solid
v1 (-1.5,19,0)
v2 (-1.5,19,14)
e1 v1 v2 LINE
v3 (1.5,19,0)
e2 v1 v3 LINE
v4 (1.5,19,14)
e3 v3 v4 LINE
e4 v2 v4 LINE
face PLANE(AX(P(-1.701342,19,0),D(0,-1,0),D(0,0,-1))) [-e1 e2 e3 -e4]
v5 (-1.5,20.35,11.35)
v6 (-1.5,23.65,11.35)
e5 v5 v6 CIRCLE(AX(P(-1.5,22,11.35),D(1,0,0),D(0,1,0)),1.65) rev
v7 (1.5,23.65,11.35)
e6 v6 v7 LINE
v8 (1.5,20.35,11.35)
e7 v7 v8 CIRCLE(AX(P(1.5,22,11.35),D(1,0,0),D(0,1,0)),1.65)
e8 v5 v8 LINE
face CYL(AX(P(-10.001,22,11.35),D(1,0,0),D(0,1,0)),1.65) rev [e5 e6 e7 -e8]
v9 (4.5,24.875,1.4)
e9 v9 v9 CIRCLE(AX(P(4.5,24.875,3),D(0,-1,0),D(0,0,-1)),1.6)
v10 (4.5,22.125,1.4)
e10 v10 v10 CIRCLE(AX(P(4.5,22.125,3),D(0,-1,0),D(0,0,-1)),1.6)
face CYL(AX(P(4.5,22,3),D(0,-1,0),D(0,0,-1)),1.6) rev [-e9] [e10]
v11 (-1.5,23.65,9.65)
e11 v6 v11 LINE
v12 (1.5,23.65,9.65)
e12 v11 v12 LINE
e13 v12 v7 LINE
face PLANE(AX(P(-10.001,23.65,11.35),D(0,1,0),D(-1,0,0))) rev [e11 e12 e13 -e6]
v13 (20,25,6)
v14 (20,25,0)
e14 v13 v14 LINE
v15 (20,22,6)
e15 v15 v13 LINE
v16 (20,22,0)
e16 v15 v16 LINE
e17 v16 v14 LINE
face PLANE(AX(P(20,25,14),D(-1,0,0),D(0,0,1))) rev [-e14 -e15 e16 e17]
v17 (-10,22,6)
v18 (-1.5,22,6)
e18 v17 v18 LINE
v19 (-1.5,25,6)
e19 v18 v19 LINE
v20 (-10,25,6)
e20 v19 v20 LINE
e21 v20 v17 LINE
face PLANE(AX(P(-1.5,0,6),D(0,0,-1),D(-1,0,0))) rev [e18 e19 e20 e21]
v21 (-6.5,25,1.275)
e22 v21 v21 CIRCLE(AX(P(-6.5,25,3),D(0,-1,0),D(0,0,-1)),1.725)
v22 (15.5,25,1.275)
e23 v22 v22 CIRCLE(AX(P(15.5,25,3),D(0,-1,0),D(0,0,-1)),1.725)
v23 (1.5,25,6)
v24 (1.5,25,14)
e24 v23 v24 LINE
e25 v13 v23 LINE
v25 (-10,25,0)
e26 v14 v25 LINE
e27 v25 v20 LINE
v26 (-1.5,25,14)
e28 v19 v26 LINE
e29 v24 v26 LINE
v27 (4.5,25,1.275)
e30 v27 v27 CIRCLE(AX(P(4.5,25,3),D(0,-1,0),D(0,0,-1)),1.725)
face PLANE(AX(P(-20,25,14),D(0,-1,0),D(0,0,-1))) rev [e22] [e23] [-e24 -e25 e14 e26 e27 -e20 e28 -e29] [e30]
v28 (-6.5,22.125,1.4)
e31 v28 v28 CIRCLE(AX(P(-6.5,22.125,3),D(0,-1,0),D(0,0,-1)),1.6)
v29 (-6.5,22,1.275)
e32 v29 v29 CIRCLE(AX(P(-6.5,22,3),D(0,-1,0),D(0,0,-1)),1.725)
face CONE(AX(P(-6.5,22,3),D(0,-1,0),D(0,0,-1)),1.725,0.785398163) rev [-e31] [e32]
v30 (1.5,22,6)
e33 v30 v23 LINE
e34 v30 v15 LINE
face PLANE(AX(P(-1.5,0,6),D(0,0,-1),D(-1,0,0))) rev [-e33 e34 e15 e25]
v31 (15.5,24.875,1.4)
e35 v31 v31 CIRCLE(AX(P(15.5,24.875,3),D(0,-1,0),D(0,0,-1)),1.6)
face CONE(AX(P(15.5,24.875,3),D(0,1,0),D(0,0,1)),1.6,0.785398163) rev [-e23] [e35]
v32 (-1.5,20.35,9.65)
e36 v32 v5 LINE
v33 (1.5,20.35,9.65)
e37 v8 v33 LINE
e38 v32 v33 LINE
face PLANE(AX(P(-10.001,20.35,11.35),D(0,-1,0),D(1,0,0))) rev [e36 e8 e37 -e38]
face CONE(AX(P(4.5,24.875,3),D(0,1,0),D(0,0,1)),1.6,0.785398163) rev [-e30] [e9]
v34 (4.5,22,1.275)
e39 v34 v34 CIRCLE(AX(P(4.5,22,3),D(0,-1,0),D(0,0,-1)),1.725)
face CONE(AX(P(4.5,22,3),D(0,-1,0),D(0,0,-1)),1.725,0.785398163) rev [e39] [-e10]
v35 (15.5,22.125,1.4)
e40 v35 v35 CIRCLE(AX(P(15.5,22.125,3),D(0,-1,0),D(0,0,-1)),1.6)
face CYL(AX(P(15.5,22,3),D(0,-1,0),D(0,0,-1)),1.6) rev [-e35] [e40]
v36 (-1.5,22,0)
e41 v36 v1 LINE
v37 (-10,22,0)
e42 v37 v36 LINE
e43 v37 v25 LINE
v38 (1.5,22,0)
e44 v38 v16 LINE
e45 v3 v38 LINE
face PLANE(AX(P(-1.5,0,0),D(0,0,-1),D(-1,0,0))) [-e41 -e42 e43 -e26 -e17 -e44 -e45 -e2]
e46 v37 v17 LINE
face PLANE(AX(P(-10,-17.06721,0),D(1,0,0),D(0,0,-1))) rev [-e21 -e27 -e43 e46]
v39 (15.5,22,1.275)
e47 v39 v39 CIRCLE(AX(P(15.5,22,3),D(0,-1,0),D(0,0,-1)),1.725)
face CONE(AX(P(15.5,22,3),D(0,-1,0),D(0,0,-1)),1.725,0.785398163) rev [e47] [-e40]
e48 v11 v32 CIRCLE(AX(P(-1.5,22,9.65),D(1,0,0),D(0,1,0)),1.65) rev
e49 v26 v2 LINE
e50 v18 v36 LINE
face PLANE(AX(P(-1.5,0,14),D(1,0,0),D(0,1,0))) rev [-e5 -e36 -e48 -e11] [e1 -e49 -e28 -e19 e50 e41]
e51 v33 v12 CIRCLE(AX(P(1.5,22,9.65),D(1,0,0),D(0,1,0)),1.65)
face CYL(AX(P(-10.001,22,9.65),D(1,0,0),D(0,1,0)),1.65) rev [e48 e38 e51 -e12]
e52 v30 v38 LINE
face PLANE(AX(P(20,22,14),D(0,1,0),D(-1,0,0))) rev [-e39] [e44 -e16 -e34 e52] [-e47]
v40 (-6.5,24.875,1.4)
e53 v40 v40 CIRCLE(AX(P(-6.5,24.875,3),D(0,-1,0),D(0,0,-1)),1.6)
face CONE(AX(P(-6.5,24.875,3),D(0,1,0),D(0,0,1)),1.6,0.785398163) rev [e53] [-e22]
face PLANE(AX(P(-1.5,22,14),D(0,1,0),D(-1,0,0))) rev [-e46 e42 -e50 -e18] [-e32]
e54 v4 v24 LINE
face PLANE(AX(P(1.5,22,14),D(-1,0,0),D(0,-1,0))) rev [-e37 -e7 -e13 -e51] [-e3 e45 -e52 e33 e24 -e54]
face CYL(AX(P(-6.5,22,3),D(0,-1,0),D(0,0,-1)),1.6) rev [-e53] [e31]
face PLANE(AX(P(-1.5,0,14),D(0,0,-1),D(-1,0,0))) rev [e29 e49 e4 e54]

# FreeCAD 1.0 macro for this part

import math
import FreeCAD as App
import Part
import Sketcher

V = App.Vector
Q = App.Units.Quantity

doc = App.newDocument("Part")
params = doc.addObject("Spreadsheet::Sheet", "Params")
for row, (alias, value) in enumerate([
    ("sketch1_width", "3 mm"),
    ("sketch1_width2", "40 mm"),
    ("sketch1_height", "22 mm"),
    ("pad1_length", "14 mm"),
    ("sketch2_width", "10 mm"),
    ("sketch2_width2", "3 mm"),
    ("sketch2_height", "19 mm"),
    ("sketch3_height", "3 mm"),
    ("sketch3_width", "8.5 mm"),
    ("sketch3_width2", "18.5 mm"),
    ("pocket2_length", "8 mm"),
    ("sketch4_width", "3 mm"),
    ("sketch4_width2", "2.75 mm"),
    ("groove_angle", "360 deg"),
    ("linearpattern_pitch", "22 mm"),
    ("linearpattern2_pitch", "11 mm"),
    ("sketch5_radius", "1.65 mm"),
    ("sketch5_height", "1.7 mm"),
], start=1):
    params.set(f"A{row}", alias)
    params.set(f"B{row}", "=" + value)
    params.setAlias(f"B{row}", alias)

body = doc.addObject("PartDesign::Body", "Body")

# Sketch on XY plane
sketch1 = body.newObject("Sketcher::SketchObject", "Sketch")
sketch1.AttachmentSupport = (doc.getObject("XY_Plane"), [""])
sketch1.MapMode = "FlatFace"
sketch1.addGeometry([
    Part.LineSegment(V(-1.5, 22, 0), V(-1.5, 0, 0)),  # 0
    Part.LineSegment(V(-1.5, 0, 0), V(1.5, 0, 0)),  # 1
    Part.LineSegment(V(1.5, 0, 0), V(1.5, 22, 0)),  # 2
    Part.LineSegment(V(1.5, 22, 0), V(20, 22, 0)),  # 3
    Part.LineSegment(V(20, 22, 0), V(20, 25, 0)),  # 4
    Part.LineSegment(V(20, 25, 0), V(-20, 25, 0)),  # 5
    Part.LineSegment(V(-20, 25, 0), V(-20, 22, 0)),  # 6
    Part.LineSegment(V(-20, 22, 0), V(-1.5, 22, 0)),  # 7
], False)
sketch1.addConstraint([
    Sketcher.Constraint("Coincident", 0, 2, 1, 1),
    Sketcher.Constraint("Coincident", 1, 2, 2, 1),
    Sketcher.Constraint("Coincident", 2, 2, 3, 1),
    Sketcher.Constraint("Coincident", 3, 2, 4, 1),
    Sketcher.Constraint("Coincident", 4, 2, 5, 1),
    Sketcher.Constraint("Coincident", 5, 2, 6, 1),
    Sketcher.Constraint("Coincident", 6, 2, 7, 1),
    Sketcher.Constraint("Coincident", 7, 2, 0, 1),
    Sketcher.Constraint("Vertical", 0),
    Sketcher.Constraint("Horizontal", 1),
    Sketcher.Constraint("Vertical", 2),
    Sketcher.Constraint("Horizontal", 3),
    Sketcher.Constraint("Vertical", 4),
    Sketcher.Constraint("Horizontal", 5),
    Sketcher.Constraint("Vertical", 6),
    Sketcher.Constraint("Horizontal", 7),
    Sketcher.Constraint("Symmetric", 0, 2, 1, 2, -1, 1),
    Sketcher.Constraint("Symmetric", 3, 2, 6, 2, -2),
    Sketcher.Constraint("Equal", 1, 4),
    Sketcher.Constraint("DistanceX", 1, 1, 1, 2, Q("3 mm")),
    Sketcher.Constraint("DistanceX", 5, 2, 5, 1, Q("40 mm")),
    Sketcher.Constraint("DistanceY", 0, 2, 0, 1, Q("22 mm")),
])
sketch1.setExpression("Constraints[19]", "Params.sketch1_width")
sketch1.setExpression("Constraints[20]", "Params.sketch1_width2")
sketch1.setExpression("Constraints[21]", "Params.sketch1_height")
pad1 = body.newObject("PartDesign::Pad", "Pad")
pad1.Profile = sketch1
pad1.setExpression("Length", "Params.pad1_length")

# Sketch on XY plane
sketch2 = body.newObject("Sketcher::SketchObject", "Sketch001")
sketch2.AttachmentSupport = (doc.getObject("XY_Plane"), [""])
sketch2.MapMode = "FlatFace"
sketch2.AttachmentOffset = App.Placement(V(0, 0, 14), App.Rotation())
sketch2.addGeometry([
    Part.LineSegment(V(-20, 25, 0), V(-20, 22, 0)),  # 0
    Part.LineSegment(V(-20, 22, 0), V(-10, 22, 0)),  # 1
    Part.LineSegment(V(-10, 22, 0), V(-10, 25, 0)),  # 2
    Part.LineSegment(V(-10, 25, 0), V(-20, 25, 0)),  # 3
    Part.LineSegment(V(-1.5, 19, 0), V(-1.5, 0, 0)),  # 4
    Part.LineSegment(V(-1.5, 0, 0), V(1.5, 0, 0)),  # 5
    Part.LineSegment(V(1.5, 0, 0), V(1.5, 19, 0)),  # 6
    Part.LineSegment(V(1.5, 19, 0), V(-1.5, 19, 0)),  # 7
], False)
sketch2.addConstraint([
    Sketcher.Constraint("Coincident", 0, 2, 1, 1),
    Sketcher.Constraint("Coincident", 1, 2, 2, 1),
    Sketcher.Constraint("Coincident", 2, 2, 3, 1),
    Sketcher.Constraint("Coincident", 3, 2, 0, 1),
    Sketcher.Constraint("Coincident", 4, 2, 5, 1),
    Sketcher.Constraint("Coincident", 5, 2, 6, 1),
    Sketcher.Constraint("Coincident", 6, 2, 7, 1),
    Sketcher.Constraint("Coincident", 7, 2, 4, 1),
    Sketcher.Constraint("Vertical", 0),
    Sketcher.Constraint("Horizontal", 1),
    Sketcher.Constraint("Vertical", 2),
    Sketcher.Constraint("Horizontal", 3),
    Sketcher.Constraint("Vertical", 4),
    Sketcher.Constraint("Horizontal", 5),
    Sketcher.Constraint("Vertical", 6),
    Sketcher.Constraint("Horizontal", 7),
    Sketcher.Constraint("Symmetric", 4, 2, 5, 2, -1, 1),
    Sketcher.Constraint("Equal", 7, 0),
    Sketcher.Constraint("DistanceX", 1, 1, 1, 2, Q("10 mm")),
    Sketcher.Constraint("DistanceX", 5, 1, 5, 2, Q("3 mm")),
    Sketcher.Constraint("DistanceY", 4, 2, 4, 1, Q("19 mm")),
    Sketcher.Constraint("DistanceX", 0, 2, -1, 1, Q("20 mm")),
    Sketcher.Constraint("DistanceY", -1, 1, 0, 2, Q("22 mm")),
])
sketch2.setExpression("Constraints[18]", "Params.sketch2_width")
sketch2.setExpression("Constraints[19]", "Params.sketch2_width2")
sketch2.setExpression("Constraints[20]", "Params.sketch2_height")
pocket1 = body.newObject("PartDesign::Pocket", "Pocket")
pocket1.Profile = sketch2
pocket1.Type = "ThroughAll"

# Sketch on XY plane
sketch3 = body.newObject("Sketcher::SketchObject", "Sketch002")
sketch3.AttachmentSupport = (doc.getObject("XY_Plane"), [""])
sketch3.MapMode = "FlatFace"
sketch3.AttachmentOffset = App.Placement(V(0, 0, 14), App.Rotation())
sketch3.addGeometry([
    Part.LineSegment(V(-10, 25, 0), V(-10, 22, 0)),  # 0
    Part.LineSegment(V(-10, 22, 0), V(-1.5, 22, 0)),  # 1
    Part.LineSegment(V(-1.5, 22, 0), V(-1.5, 25, 0)),  # 2
    Part.LineSegment(V(-1.5, 25, 0), V(-10, 25, 0)),  # 3
    Part.LineSegment(V(1.5, 25, 0), V(1.5, 22, 0)),  # 4
    Part.LineSegment(V(1.5, 22, 0), V(20, 22, 0)),  # 5
    Part.LineSegment(V(20, 22, 0), V(20, 25, 0)),  # 6
    Part.LineSegment(V(20, 25, 0), V(1.5, 25, 0)),  # 7
], False)
sketch3.addConstraint([
    Sketcher.Constraint("Coincident", 0, 2, 1, 1),
    Sketcher.Constraint("Coincident", 1, 2, 2, 1),
    Sketcher.Constraint("Coincident", 2, 2, 3, 1),
    Sketcher.Constraint("Coincident", 3, 2, 0, 1),
    Sketcher.Constraint("Coincident", 4, 2, 5, 1),
    Sketcher.Constraint("Coincident", 5, 2, 6, 1),
    Sketcher.Constraint("Coincident", 6, 2, 7, 1),
    Sketcher.Constraint("Coincident", 7, 2, 4, 1),
    Sketcher.Constraint("Vertical", 0),
    Sketcher.Constraint("Horizontal", 1),
    Sketcher.Constraint("Vertical", 2),
    Sketcher.Constraint("Horizontal", 3),
    Sketcher.Constraint("Vertical", 4),
    Sketcher.Constraint("Horizontal", 5),
    Sketcher.Constraint("Vertical", 6),
    Sketcher.Constraint("Horizontal", 7),
    Sketcher.Constraint("Symmetric", 1, 2, 4, 2, -2),
    Sketcher.Constraint("Horizontal", 3, 2, 6, 2),
    Sketcher.Constraint("DistanceY", 0, 2, 0, 1, Q("3 mm")),
    Sketcher.Constraint("DistanceX", 1, 1, 1, 2, Q("8.5 mm")),
    Sketcher.Constraint("DistanceX", 5, 1, 5, 2, Q("18.5 mm")),
    Sketcher.Constraint("DistanceX", 0, 2, -1, 1, Q("10 mm")),
    Sketcher.Constraint("DistanceY", -1, 1, 0, 2, Q("22 mm")),
])
sketch3.setExpression("Constraints[18]", "Params.sketch3_height")
sketch3.setExpression("Constraints[19]", "Params.sketch3_width")
sketch3.setExpression("Constraints[20]", "Params.sketch3_width2")
pocket2 = body.newObject("PartDesign::Pocket", "Pocket001")
pocket2.Profile = sketch3
pocket2.setExpression("Length", "Params.pocket2_length")

# Sketch on YZ plane
sketch4 = body.newObject("Sketcher::SketchObject", "Sketch003")
sketch4.AttachmentSupport = (doc.getObject("YZ_Plane"), [""])
sketch4.MapMode = "FlatFace"
sketch4.AttachmentOffset = App.Placement(V(0, 0, -6.5), App.Rotation())
sketch4.addGeometry([
    Part.LineSegment(V(25, 3, 0), V(22, 3, 0)),  # 0
    Part.LineSegment(V(22, 3, 0), V(22, 1.27, 0)),  # 1
    Part.LineSegment(V(22, 1.27, 0), V(22.12, 1.4, 0)),  # 2
    Part.LineSegment(V(22.12, 1.4, 0), V(24.88, 1.4, 0)),  # 3
    Part.LineSegment(V(24.88, 1.4, 0), V(25, 1.27, 0)),  # 4
    Part.LineSegment(V(25, 1.27, 0), V(25, 3, 0)),  # 5
], False)
sketch4.addGeometry(Part.LineSegment(V(22, 3, 0), V(25, 3, 0)), True)  # axis
sketch4.addConstraint([
    Sketcher.Constraint("Coincident", 0, 2, 1, 1),
    Sketcher.Constraint("Coincident", 1, 2, 2, 1),
    Sketcher.Constraint("Coincident", 2, 2, 3, 1),
    Sketcher.Constraint("Coincident", 3, 2, 4, 1),
    Sketcher.Constraint("Coincident", 4, 2, 5, 1),
    Sketcher.Constraint("Coincident", 5, 2, 0, 1),
    Sketcher.Constraint("Horizontal", 0),
    Sketcher.Constraint("Vertical", 1),
    Sketcher.Constraint("Horizontal", 3),
    Sketcher.Constraint("Vertical", 5),
    Sketcher.Constraint("Horizontal", 6),
    Sketcher.Constraint("Coincident", 6, 1, 0, 2),
    Sketcher.Constraint("Perpendicular", 2, 4),
    Sketcher.Constraint("Horizontal", 1, 2, 4, 2),
    Sketcher.Constraint("Vertical", 4, 2, 6, 2),
    Sketcher.Constraint("Equal", 2, 4),
    Sketcher.Constraint("DistanceX", 0, 2, 0, 1, Q("3 mm")),
    Sketcher.Constraint("DistanceX", -1, 1, 0, 2, Q("22 mm")),
    Sketcher.Constraint("DistanceY", -1, 1, 0, 2, Q("3 mm")),
    Sketcher.Constraint("DistanceX", 3, 1, 3, 2, Q("2.75 mm")),
    Sketcher.Constraint("DistanceY", -1, 1, 2, 2, Q("1.4 mm")),
])
sketch4.setExpression("Constraints[16]", "Params.sketch4_width")
sketch4.setExpression("Constraints[19]", "Params.sketch4_width2")
groove = body.newObject("PartDesign::Groove", "Groove")
groove.Profile = sketch4
groove.ReferenceAxis = (sketch4, ["Axis0"])
groove.setExpression("Angle", "Params.groove_angle")
doc.recompute()

linearpattern = body.newObject("PartDesign::LinearPattern", "LinearPattern")
linearpattern.Originals = [groove]
linearpattern.Direction = (doc.getObject("X_Axis"), [""])
linearpattern.Mode = "offset"
linearpattern.setExpression("Offset", "Params.linearpattern_pitch")
linearpattern.Occurrences = 2
body.Tip = linearpattern
doc.recompute()

linearpattern2 = body.newObject("PartDesign::LinearPattern", "LinearPattern001")
linearpattern2.Originals = [groove]
linearpattern2.Direction = (doc.getObject("X_Axis"), [""])
linearpattern2.Mode = "offset"
linearpattern2.setExpression("Offset", "Params.linearpattern2_pitch")
linearpattern2.Occurrences = 2
body.Tip = linearpattern2

# Sketch on YZ plane
sketch5 = body.newObject("Sketcher::SketchObject", "Sketch004")
sketch5.AttachmentSupport = (doc.getObject("YZ_Plane"), [""])
sketch5.MapMode = "FlatFace"
sketch5.AttachmentOffset = App.Placement(V(0, 0, 1.5), App.Rotation())
sketch5.addGeometry([
    Part.LineSegment(V(23.6, 9.7, 0), V(23.6, 11.3, 0)),
    Part.ArcOfCircle(Part.Circle(V(22, 11.3, 0), V(0, 0, 1), 1.6), math.radians(0), math.radians(180)),
    Part.LineSegment(V(20.4, 11.3, 0), V(20.4, 9.7, 0)),
    Part.ArcOfCircle(Part.Circle(V(22, 9.7, 0), V(0, 0, 1), 1.6), math.radians(180), math.radians(360)),
], False)
sketch5.addConstraint([
    Sketcher.Constraint("Tangent", 0, 2, 1, 1),
    Sketcher.Constraint("Tangent", 1, 2, 2, 1),
    Sketcher.Constraint("Tangent", 2, 2, 3, 1),
    Sketcher.Constraint("Tangent", 3, 2, 0, 1),
    Sketcher.Constraint("Vertical", 0),
    Sketcher.Constraint("Vertical", 2),
    Sketcher.Constraint("Radius", 1, Q("1.65 mm")),
    Sketcher.Constraint("DistanceY", 0, 1, 0, 2, Q("1.7 mm")),
    Sketcher.Constraint("DistanceX", -1, 1, 1, 3, Q("22 mm")),
    Sketcher.Constraint("DistanceY", -1, 1, 1, 3, Q("11.35 mm")),
])
sketch5.setExpression("Constraints[6]", "Params.sketch5_radius")
sketch5.setExpression("Constraints[7]", "Params.sketch5_height")
pocket3 = body.newObject("PartDesign::Pocket", "Pocket002")
pocket3.Profile = sketch5
pocket3.Type = "UpToFirst"

doc.recompute()
